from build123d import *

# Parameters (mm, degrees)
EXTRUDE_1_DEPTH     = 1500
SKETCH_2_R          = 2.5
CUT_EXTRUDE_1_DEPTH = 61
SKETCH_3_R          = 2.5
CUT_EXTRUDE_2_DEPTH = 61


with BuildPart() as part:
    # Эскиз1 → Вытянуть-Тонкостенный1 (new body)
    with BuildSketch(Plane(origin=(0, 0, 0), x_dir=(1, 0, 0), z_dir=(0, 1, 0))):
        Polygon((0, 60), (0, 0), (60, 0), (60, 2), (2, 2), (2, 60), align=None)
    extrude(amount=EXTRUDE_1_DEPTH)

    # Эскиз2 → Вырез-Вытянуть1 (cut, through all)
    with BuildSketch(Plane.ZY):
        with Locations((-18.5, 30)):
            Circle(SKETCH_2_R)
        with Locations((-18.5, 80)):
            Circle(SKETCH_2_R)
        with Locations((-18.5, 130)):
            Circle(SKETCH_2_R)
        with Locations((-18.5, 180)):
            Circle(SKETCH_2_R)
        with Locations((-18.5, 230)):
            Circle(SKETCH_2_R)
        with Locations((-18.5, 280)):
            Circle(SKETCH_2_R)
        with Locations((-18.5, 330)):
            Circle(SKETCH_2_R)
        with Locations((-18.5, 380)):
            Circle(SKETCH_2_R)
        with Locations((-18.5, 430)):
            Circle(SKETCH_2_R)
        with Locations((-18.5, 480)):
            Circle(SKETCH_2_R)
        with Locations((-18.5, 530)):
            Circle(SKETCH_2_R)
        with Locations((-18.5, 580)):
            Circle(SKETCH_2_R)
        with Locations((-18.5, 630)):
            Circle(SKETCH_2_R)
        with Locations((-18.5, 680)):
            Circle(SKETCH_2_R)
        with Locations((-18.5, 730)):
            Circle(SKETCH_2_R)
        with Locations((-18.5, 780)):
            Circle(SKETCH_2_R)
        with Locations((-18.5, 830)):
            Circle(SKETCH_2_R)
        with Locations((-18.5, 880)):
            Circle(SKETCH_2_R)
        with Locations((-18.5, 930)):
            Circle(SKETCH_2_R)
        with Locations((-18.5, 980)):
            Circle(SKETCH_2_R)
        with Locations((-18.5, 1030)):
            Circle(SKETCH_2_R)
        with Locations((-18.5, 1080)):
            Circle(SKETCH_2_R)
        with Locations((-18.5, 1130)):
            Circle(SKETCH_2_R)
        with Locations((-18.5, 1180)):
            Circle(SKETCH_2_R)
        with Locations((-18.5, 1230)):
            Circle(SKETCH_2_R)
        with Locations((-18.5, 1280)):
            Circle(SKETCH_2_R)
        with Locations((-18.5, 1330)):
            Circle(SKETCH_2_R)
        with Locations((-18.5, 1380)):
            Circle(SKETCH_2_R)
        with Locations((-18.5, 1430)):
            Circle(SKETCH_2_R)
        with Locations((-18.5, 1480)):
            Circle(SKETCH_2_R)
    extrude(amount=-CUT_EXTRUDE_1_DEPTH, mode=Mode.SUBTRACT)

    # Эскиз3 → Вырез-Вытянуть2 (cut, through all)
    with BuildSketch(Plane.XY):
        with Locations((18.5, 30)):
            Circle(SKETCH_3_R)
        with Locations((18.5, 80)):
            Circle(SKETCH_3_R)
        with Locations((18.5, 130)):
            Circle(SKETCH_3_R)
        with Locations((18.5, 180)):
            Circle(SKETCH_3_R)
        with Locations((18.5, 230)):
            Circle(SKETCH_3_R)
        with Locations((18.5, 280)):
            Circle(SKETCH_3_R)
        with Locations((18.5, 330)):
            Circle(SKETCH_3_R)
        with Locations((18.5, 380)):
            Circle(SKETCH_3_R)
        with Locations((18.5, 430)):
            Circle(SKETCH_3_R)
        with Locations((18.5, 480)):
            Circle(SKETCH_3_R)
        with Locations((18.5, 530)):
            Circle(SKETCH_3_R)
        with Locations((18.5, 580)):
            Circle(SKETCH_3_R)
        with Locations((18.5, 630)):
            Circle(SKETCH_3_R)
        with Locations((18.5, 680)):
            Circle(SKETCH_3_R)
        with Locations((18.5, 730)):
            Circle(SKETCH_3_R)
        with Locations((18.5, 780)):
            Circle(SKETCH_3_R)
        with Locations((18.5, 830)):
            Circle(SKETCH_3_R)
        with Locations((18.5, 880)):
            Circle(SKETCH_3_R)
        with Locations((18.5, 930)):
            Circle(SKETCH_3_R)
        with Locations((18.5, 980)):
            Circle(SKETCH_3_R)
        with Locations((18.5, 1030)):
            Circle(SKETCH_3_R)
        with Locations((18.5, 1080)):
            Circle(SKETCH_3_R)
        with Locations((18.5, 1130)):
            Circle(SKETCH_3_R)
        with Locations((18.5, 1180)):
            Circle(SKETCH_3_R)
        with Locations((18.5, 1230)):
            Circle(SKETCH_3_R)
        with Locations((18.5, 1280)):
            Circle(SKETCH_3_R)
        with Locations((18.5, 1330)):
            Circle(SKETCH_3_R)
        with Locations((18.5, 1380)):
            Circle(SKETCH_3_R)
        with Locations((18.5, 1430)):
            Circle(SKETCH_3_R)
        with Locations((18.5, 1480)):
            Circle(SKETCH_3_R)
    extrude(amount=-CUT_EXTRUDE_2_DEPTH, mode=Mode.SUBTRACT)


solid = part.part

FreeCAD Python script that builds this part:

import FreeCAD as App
import Part
import Sketcher

V = App.Vector


def add_polygon(sketch, points):
    """Adds a closed chain of lines whose ends are joined by coincident constraints."""
    first, n = sketch.GeometryCount, len(points)
    for a, b in zip(points, points[1:] + points[:1]):
        sketch.addGeometry(Part.LineSegment(App.Vector(*a, 0), App.Vector(*b, 0)), False)
    for i in range(n):
        sketch.addConstraint(Sketcher.Constraint("Coincident", first + i, 2, first + (i + 1) % n, 1))

doc = App.newDocument("Part")
body = doc.addObject("PartDesign::Body", "Body")

# Sketch on XZ plane
sketch1 = body.newObject("Sketcher::SketchObject", "Sketch")
sketch1.AttachmentSupport = (doc.getObject("XZ_Plane"), [""])
sketch1.MapMode = "FlatFace"
add_polygon(sketch1, [(0, -60), (0, 0), (60, 0), (60, -2), (2, -2), (2, -60)])  # lines 0-5
sketch1.addConstraint([
    Sketcher.Constraint("Vertical", 0),
    Sketcher.Constraint("Horizontal", 1),
    Sketcher.Constraint("Vertical", 2),
    Sketcher.Constraint("Horizontal", 3),
    Sketcher.Constraint("Vertical", 4),
    Sketcher.Constraint("Horizontal", 5),
    Sketcher.Constraint("Coincident", 0, 2, -1, 1),
    Sketcher.Constraint("Equal", 1, 0),
    Sketcher.Constraint("Equal", 5, 2),
    Sketcher.Constraint("DistanceX", 1, 1, 1, 2, 60.0),
    Sketcher.Constraint("DistanceX", 3, 2, 3, 1, 58.0),
])
pad1 = body.newObject("PartDesign::Pad", "Pad")
pad1.Profile = sketch1
pad1.Length = 1500
pad1.Reversed = True

# Sketch on YZ plane
sketch2 = body.newObject("Sketcher::SketchObject", "Sketch001")
sketch2.AttachmentSupport = (doc.getObject("YZ_Plane"), [""])
sketch2.MapMode = "FlatFace"
sketch2.addGeometry([
    Part.Circle(V(30, -18.5, 0), V(0, 0, 1), 2.5),  # 0
    Part.Circle(V(80, -18.5, 0), V(0, 0, 1), 2.5),  # 1
    Part.Circle(V(130, -18.5, 0), V(0, 0, 1), 2.5),  # 2
    Part.Circle(V(180, -18.5, 0), V(0, 0, 1), 2.5),  # 3
    Part.Circle(V(230, -18.5, 0), V(0, 0, 1), 2.5),  # 4
    Part.Circle(V(280, -18.5, 0), V(0, 0, 1), 2.5),  # 5
    Part.Circle(V(330, -18.5, 0), V(0, 0, 1), 2.5),  # 6
    Part.Circle(V(380, -18.5, 0), V(0, 0, 1), 2.5),  # 7
    Part.Circle(V(430, -18.5, 0), V(0, 0, 1), 2.5),  # 8
    Part.Circle(V(480, -18.5, 0), V(0, 0, 1), 2.5),  # 9
    Part.Circle(V(530, -18.5, 0), V(0, 0, 1), 2.5),  # 10
    Part.Circle(V(580, -18.5, 0), V(0, 0, 1), 2.5),  # 11
    Part.Circle(V(630, -18.5, 0), V(0, 0, 1), 2.5),  # 12
    Part.Circle(V(680, -18.5, 0), V(0, 0, 1), 2.5),  # 13
    Part.Circle(V(730, -18.5, 0), V(0, 0, 1), 2.5),  # 14
    Part.Circle(V(780, -18.5, 0), V(0, 0, 1), 2.5),  # 15
    Part.Circle(V(830, -18.5, 0), V(0, 0, 1), 2.5),  # 16
    Part.Circle(V(880, -18.5, 0), V(0, 0, 1), 2.5),  # 17
    Part.Circle(V(930, -18.5, 0), V(0, 0, 1), 2.5),  # 18
    Part.Circle(V(980, -18.5, 0), V(0, 0, 1), 2.5),  # 19
    Part.Circle(V(1030, -18.5, 0), V(0, 0, 1), 2.5),  # 20
    Part.Circle(V(1080, -18.5, 0), V(0, 0, 1), 2.5),  # 21
    Part.Circle(V(1130, -18.5, 0), V(0, 0, 1), 2.5),  # 22
    Part.Circle(V(1180, -18.5, 0), V(0, 0, 1), 2.5),  # 23
    Part.Circle(V(1230, -18.5, 0), V(0, 0, 1), 2.5),  # 24
    Part.Circle(V(1280, -18.5, 0), V(0, 0, 1), 2.5),  # 25
    Part.Circle(V(1330, -18.5, 0), V(0, 0, 1), 2.5),  # 26
    Part.Circle(V(1380, -18.5, 0), V(0, 0, 1), 2.5),  # 27
    Part.Circle(V(1430, -18.5, 0), V(0, 0, 1), 2.5),  # 28
    Part.Circle(V(1480, -18.5, 0), V(0, 0, 1), 2.5),  # 29
], False)
sketch2.addConstraint([
    Sketcher.Constraint("Equal", 0, 1),
    Sketcher.Constraint("Equal", 1, 2),
    Sketcher.Constraint("Equal", 2, 3),
    Sketcher.Constraint("Equal", 3, 4),
    Sketcher.Constraint("Equal", 4, 5),
    Sketcher.Constraint("Equal", 5, 6),
    Sketcher.Constraint("Equal", 6, 7),
    Sketcher.Constraint("Equal", 7, 8),
    Sketcher.Constraint("Equal", 8, 9),
    Sketcher.Constraint("Equal", 9, 10),
    Sketcher.Constraint("Equal", 10, 11),
    Sketcher.Constraint("Equal", 11, 12),
    Sketcher.Constraint("Equal", 12, 13),
    Sketcher.Constraint("Equal", 13, 14),
    Sketcher.Constraint("Equal", 14, 15),
    Sketcher.Constraint("Equal", 15, 16),
    Sketcher.Constraint("Equal", 16, 17),
    Sketcher.Constraint("Equal", 17, 18),
    Sketcher.Constraint("Equal", 18, 19),
    Sketcher.Constraint("Equal", 19, 20),
    Sketcher.Constraint("Equal", 20, 21),
    Sketcher.Constraint("Equal", 21, 22),
    Sketcher.Constraint("Equal", 22, 23),
    Sketcher.Constraint("Equal", 23, 24),
    Sketcher.Constraint("Equal", 24, 25),
    Sketcher.Constraint("Equal", 25, 26),
    Sketcher.Constraint("Equal", 26, 27),
    Sketcher.Constraint("Equal", 27, 28),
    Sketcher.Constraint("Equal", 28, 29),
    Sketcher.Constraint("Horizontal", 0, 3, 1, 3),
    Sketcher.Constraint("Horizontal", 1, 3, 2, 3),
    Sketcher.Constraint("Horizontal", 2, 3, 3, 3),
    Sketcher.Constraint("Horizontal", 3, 3, 4, 3),
    Sketcher.Constraint("Horizontal", 4, 3, 5, 3),
    Sketcher.Constraint("Horizontal", 5, 3, 6, 3),
    Sketcher.Constraint("Horizontal", 6, 3, 7, 3),
    Sketcher.Constraint("Horizontal", 7, 3, 8, 3),
    Sketcher.Constraint("Horizontal", 8, 3, 9, 3),
    Sketcher.Constraint("Horizontal", 9, 3, 10, 3),
    Sketcher.Constraint("Horizontal", 10, 3, 11, 3),
    Sketcher.Constraint("Horizontal", 11, 3, 12, 3),
    Sketcher.Constraint("Horizontal", 12, 3, 13, 3),
    Sketcher.Constraint("Horizontal", 13, 3, 14, 3),
    Sketcher.Constraint("Horizontal", 14, 3, 15, 3),
    Sketcher.Constraint("Horizontal", 15, 3, 16, 3),
    Sketcher.Constraint("Horizontal", 16, 3, 17, 3),
    Sketcher.Constraint("Horizontal", 17, 3, 18, 3),
    Sketcher.Constraint("Horizontal", 18, 3, 19, 3),
    Sketcher.Constraint("Horizontal", 19, 3, 20, 3),
    Sketcher.Constraint("Horizontal", 20, 3, 21, 3),
    Sketcher.Constraint("Horizontal", 21, 3, 22, 3),
    Sketcher.Constraint("Horizontal", 22, 3, 23, 3),
    Sketcher.Constraint("Horizontal", 23, 3, 24, 3),
    Sketcher.Constraint("Horizontal", 24, 3, 25, 3),
    Sketcher.Constraint("Horizontal", 25, 3, 26, 3),
    Sketcher.Constraint("Horizontal", 26, 3, 27, 3),
    Sketcher.Constraint("Horizontal", 27, 3, 28, 3),
    Sketcher.Constraint("Horizontal", 28, 3, 29, 3),
    Sketcher.Constraint("Diameter", 0, 5.0),
    Sketcher.Constraint("DistanceX", -1, 1, 0, 3, 30.0),
    Sketcher.Constraint("DistanceX", -1, 1, 1, 3, 80.0),
    Sketcher.Constraint("DistanceX", -1, 1, 2, 3, 130.0),
    Sketcher.Constraint("DistanceX", -1, 1, 3, 3, 180.0),
    Sketcher.Constraint("DistanceX", -1, 1, 4, 3, 230.0),
    Sketcher.Constraint("DistanceX", -1, 1, 5, 3, 280.0),
    Sketcher.Constraint("DistanceX", -1, 1, 6, 3, 330.0),
    Sketcher.Constraint("DistanceX", -1, 1, 7, 3, 380.0),
    Sketcher.Constraint("DistanceX", -1, 1, 8, 3, 430.0),
    Sketcher.Constraint("DistanceX", -1, 1, 9, 3, 480.0),
    Sketcher.Constraint("DistanceX", -1, 1, 10, 3, 530.0),
    Sketcher.Constraint("DistanceX", -1, 1, 11, 3, 580.0),
    Sketcher.Constraint("DistanceX", -1, 1, 12, 3, 630.0),
    Sketcher.Constraint("DistanceX", -1, 1, 13, 3, 680.0),
    Sketcher.Constraint("DistanceX", -1, 1, 14, 3, 730.0),
    Sketcher.Constraint("DistanceX", -1, 1, 15, 3, 780.0),
    Sketcher.Constraint("DistanceX", -1, 1, 16, 3, 830.0),
    Sketcher.Constraint("DistanceX", -1, 1, 17, 3, 880.0),
    Sketcher.Constraint("DistanceX", -1, 1, 18, 3, 930.0),
    Sketcher.Constraint("DistanceX", -1, 1, 19, 3, 980.0),
    Sketcher.Constraint("DistanceX", -1, 1, 20, 3, 1030.0),
    Sketcher.Constraint("DistanceX", -1, 1, 21, 3, 1080.0),
    Sketcher.Constraint("DistanceX", -1, 1, 22, 3, 1130.0),
    Sketcher.Constraint("DistanceX", -1, 1, 23, 3, 1180.0),
    Sketcher.Constraint("DistanceX", -1, 1, 24, 3, 1230.0),
    Sketcher.Constraint("DistanceX", -1, 1, 25, 3, 1280.0),
    Sketcher.Constraint("DistanceX", -1, 1, 26, 3, 1330.0),
    Sketcher.Constraint("DistanceX", -1, 1, 27, 3, 1380.0),
    Sketcher.Constraint("DistanceX", -1, 1, 28, 3, 1430.0),
    Sketcher.Constraint("DistanceX", -1, 1, 29, 3, 1480.0),
    Sketcher.Constraint("DistanceY", 0, 3, -1, 1, 18.5),
])
pocket1 = body.newObject("PartDesign::Pocket", "Pocket")
pocket1.Profile = sketch2
pocket1.Type = "ThroughAll"
pocket1.Reversed = True

# Sketch on XY plane
sketch3 = body.newObject("Sketcher::SketchObject", "Sketch002")
sketch3.AttachmentSupport = (doc.getObject("XY_Plane"), [""])
sketch3.MapMode = "FlatFace"
sketch3.addGeometry([
    Part.Circle(V(18.5, 30, 0), V(0, 0, 1), 2.5),  # 0
    Part.Circle(V(18.5, 80, 0), V(0, 0, 1), 2.5),  # 1
    Part.Circle(V(18.5, 130, 0), V(0, 0, 1), 2.5),  # 2
    Part.Circle(V(18.5, 180, 0), V(0, 0, 1), 2.5),  # 3
    Part.Circle(V(18.5, 230, 0), V(0, 0, 1), 2.5),  # 4
    Part.Circle(V(18.5, 280, 0), V(0, 0, 1), 2.5),  # 5
    Part.Circle(V(18.5, 330, 0), V(0, 0, 1), 2.5),  # 6
    Part.Circle(V(18.5, 380, 0), V(0, 0, 1), 2.5),  # 7
    Part.Circle(V(18.5, 430, 0), V(0, 0, 1), 2.5),  # 8
    Part.Circle(V(18.5, 480, 0), V(0, 0, 1), 2.5),  # 9
    Part.Circle(V(18.5, 530, 0), V(0, 0, 1), 2.5),  # 10
    Part.Circle(V(18.5, 580, 0), V(0, 0, 1), 2.5),  # 11
    Part.Circle(V(18.5, 630, 0), V(0, 0, 1), 2.5),  # 12
    Part.Circle(V(18.5, 680, 0), V(0, 0, 1), 2.5),  # 13
    Part.Circle(V(18.5, 730, 0), V(0, 0, 1), 2.5),  # 14
    Part.Circle(V(18.5, 780, 0), V(0, 0, 1), 2.5),  # 15
    Part.Circle(V(18.5, 830, 0), V(0, 0, 1), 2.5),  # 16
    Part.Circle(V(18.5, 880, 0), V(0, 0, 1), 2.5),  # 17
    Part.Circle(V(18.5, 930, 0), V(0, 0, 1), 2.5),  # 18
    Part.Circle(V(18.5, 980, 0), V(0, 0, 1), 2.5),  # 19
    Part.Circle(V(18.5, 1030, 0), V(0, 0, 1), 2.5),  # 20
    Part.Circle(V(18.5, 1080, 0), V(0, 0, 1), 2.5),  # 21
    Part.Circle(V(18.5, 1130, 0), V(0, 0, 1), 2.5),  # 22
    Part.Circle(V(18.5, 1180, 0), V(0, 0, 1), 2.5),  # 23
    Part.Circle(V(18.5, 1230, 0), V(0, 0, 1), 2.5),  # 24
    Part.Circle(V(18.5, 1280, 0), V(0, 0, 1), 2.5),  # 25
    Part.Circle(V(18.5, 1330, 0), V(0, 0, 1), 2.5),  # 26
    Part.Circle(V(18.5, 1380, 0), V(0, 0, 1), 2.5),  # 27
    Part.Circle(V(18.5, 1430, 0), V(0, 0, 1), 2.5),  # 28
    Part.Circle(V(18.5, 1480, 0), V(0, 0, 1), 2.5),  # 29
], False)
sketch3.addConstraint([
    Sketcher.Constraint("Equal", 0, 1),
    Sketcher.Constraint("Equal", 1, 2),
    Sketcher.Constraint("Equal", 2, 3),
    Sketcher.Constraint("Equal", 3, 4),
    Sketcher.Constraint("Equal", 4, 5),
    Sketcher.Constraint("Equal", 5, 6),
    Sketcher.Constraint("Equal", 6, 7),
    Sketcher.Constraint("Equal", 7, 8),
    Sketcher.Constraint("Equal", 8, 9),
    Sketcher.Constraint("Equal", 9, 10),
    Sketcher.Constraint("Equal", 10, 11),
    Sketcher.Constraint("Equal", 11, 12),
    Sketcher.Constraint("Equal", 12, 13),
    Sketcher.Constraint("Equal", 13, 14),
    Sketcher.Constraint("Equal", 14, 15),
    Sketcher.Constraint("Equal", 15, 16),
    Sketcher.Constraint("Equal", 16, 17),
    Sketcher.Constraint("Equal", 17, 18),
    Sketcher.Constraint("Equal", 18, 19),
    Sketcher.Constraint("Equal", 19, 20),
    Sketcher.Constraint("Equal", 20, 21),
    Sketcher.Constraint("Equal", 21, 22),
    Sketcher.Constraint("Equal", 22, 23),
    Sketcher.Constraint("Equal", 23, 24),
    Sketcher.Constraint("Equal", 24, 25),
    Sketcher.Constraint("Equal", 25, 26),
    Sketcher.Constraint("Equal", 26, 27),
    Sketcher.Constraint("Equal", 27, 28),
    Sketcher.Constraint("Equal", 28, 29),
    Sketcher.Constraint("Vertical", 0, 3, 1, 3),
    Sketcher.Constraint("Vertical", 1, 3, 2, 3),
    Sketcher.Constraint("Vertical", 2, 3, 3, 3),
    Sketcher.Constraint("Vertical", 3, 3, 4, 3),
    Sketcher.Constraint("Vertical", 4, 3, 5, 3),
    Sketcher.Constraint("Vertical", 5, 3, 6, 3),
    Sketcher.Constraint("Vertical", 6, 3, 7, 3),
    Sketcher.Constraint("Vertical", 7, 3, 8, 3),
    Sketcher.Constraint("Vertical", 8, 3, 9, 3),
    Sketcher.Constraint("Vertical", 9, 3, 10, 3),
    Sketcher.Constraint("Vertical", 10, 3, 11, 3),
    Sketcher.Constraint("Vertical", 11, 3, 12, 3),
    Sketcher.Constraint("Vertical", 12, 3, 13, 3),
    Sketcher.Constraint("Vertical", 13, 3, 14, 3),
    Sketcher.Constraint("Vertical", 14, 3, 15, 3),
    Sketcher.Constraint("Vertical", 15, 3, 16, 3),
    Sketcher.Constraint("Vertical", 16, 3, 17, 3),
    Sketcher.Constraint("Vertical", 17, 3, 18, 3),
    Sketcher.Constraint("Vertical", 18, 3, 19, 3),
    Sketcher.Constraint("Vertical", 19, 3, 20, 3),
    Sketcher.Constraint("Vertical", 20, 3, 21, 3),
    Sketcher.Constraint("Vertical", 21, 3, 22, 3),
    Sketcher.Constraint("Vertical", 22, 3, 23, 3),
    Sketcher.Constraint("Vertical", 23, 3, 24, 3),
    Sketcher.Constraint("Vertical", 24, 3, 25, 3),
    Sketcher.Constraint("Vertical", 25, 3, 26, 3),
    Sketcher.Constraint("Vertical", 26, 3, 27, 3),
    Sketcher.Constraint("Vertical", 27, 3, 28, 3),
    Sketcher.Constraint("Vertical", 28, 3, 29, 3),
    Sketcher.Constraint("Diameter", 0, 5.0),
    Sketcher.Constraint("DistanceY", -1, 1, 0, 3, 30.0),
    Sketcher.Constraint("DistanceY", -1, 1, 1, 3, 80.0),
    Sketcher.Constraint("DistanceY", -1, 1, 2, 3, 130.0),
    Sketcher.Constraint("DistanceY", -1, 1, 3, 3, 180.0),
    Sketcher.Constraint("DistanceY", -1, 1, 4, 3, 230.0),
    Sketcher.Constraint("DistanceY", -1, 1, 5, 3, 280.0),
    Sketcher.Constraint("DistanceY", -1, 1, 6, 3, 330.0),
    Sketcher.Constraint("DistanceY", -1, 1, 7, 3, 380.0),
    Sketcher.Constraint("DistanceY", -1, 1, 8, 3, 430.0),
    Sketcher.Constraint("DistanceY", -1, 1, 9, 3, 480.0),
    Sketcher.Constraint("DistanceY", -1, 1, 10, 3, 530.0),
    Sketcher.Constraint("DistanceY", -1, 1, 11, 3, 580.0),
    Sketcher.Constraint("DistanceY", -1, 1, 12, 3, 630.0),
    Sketcher.Constraint("DistanceY", -1, 1, 13, 3, 680.0),
    Sketcher.Constraint("DistanceY", -1, 1, 14, 3, 730.0),
    Sketcher.Constraint("DistanceY", -1, 1, 15, 3, 780.0),
    Sketcher.Constraint("DistanceY", -1, 1, 16, 3, 830.0),
    Sketcher.Constraint("DistanceY", -1, 1, 17, 3, 880.0),
    Sketcher.Constraint("DistanceY", -1, 1, 18, 3, 930.0),
    Sketcher.Constraint("DistanceY", -1, 1, 19, 3, 980.0),
    Sketcher.Constraint("DistanceY", -1, 1, 20, 3, 1030.0),
    Sketcher.Constraint("DistanceY", -1, 1, 21, 3, 1080.0),
    Sketcher.Constraint("DistanceY", -1, 1, 22, 3, 1130.0),
    Sketcher.Constraint("DistanceY", -1, 1, 23, 3, 1180.0),
    Sketcher.Constraint("DistanceY", -1, 1, 24, 3, 1230.0),
    Sketcher.Constraint("DistanceY", -1, 1, 25, 3, 1280.0),
    Sketcher.Constraint("DistanceY", -1, 1, 26, 3, 1330.0),
    Sketcher.Constraint("DistanceY", -1, 1, 27, 3, 1380.0),
    Sketcher.Constraint("DistanceY", -1, 1, 28, 3, 1430.0),
    Sketcher.Constraint("DistanceY", -1, 1, 29, 3, 1480.0),
    Sketcher.Constraint("DistanceX", -1, 1, 0, 3, 18.5),
])
pocket2 = body.newObject("PartDesign::Pocket", "Pocket001")
pocket2.Profile = sketch3
pocket2.Type = "ThroughAll"

doc.recompute()
